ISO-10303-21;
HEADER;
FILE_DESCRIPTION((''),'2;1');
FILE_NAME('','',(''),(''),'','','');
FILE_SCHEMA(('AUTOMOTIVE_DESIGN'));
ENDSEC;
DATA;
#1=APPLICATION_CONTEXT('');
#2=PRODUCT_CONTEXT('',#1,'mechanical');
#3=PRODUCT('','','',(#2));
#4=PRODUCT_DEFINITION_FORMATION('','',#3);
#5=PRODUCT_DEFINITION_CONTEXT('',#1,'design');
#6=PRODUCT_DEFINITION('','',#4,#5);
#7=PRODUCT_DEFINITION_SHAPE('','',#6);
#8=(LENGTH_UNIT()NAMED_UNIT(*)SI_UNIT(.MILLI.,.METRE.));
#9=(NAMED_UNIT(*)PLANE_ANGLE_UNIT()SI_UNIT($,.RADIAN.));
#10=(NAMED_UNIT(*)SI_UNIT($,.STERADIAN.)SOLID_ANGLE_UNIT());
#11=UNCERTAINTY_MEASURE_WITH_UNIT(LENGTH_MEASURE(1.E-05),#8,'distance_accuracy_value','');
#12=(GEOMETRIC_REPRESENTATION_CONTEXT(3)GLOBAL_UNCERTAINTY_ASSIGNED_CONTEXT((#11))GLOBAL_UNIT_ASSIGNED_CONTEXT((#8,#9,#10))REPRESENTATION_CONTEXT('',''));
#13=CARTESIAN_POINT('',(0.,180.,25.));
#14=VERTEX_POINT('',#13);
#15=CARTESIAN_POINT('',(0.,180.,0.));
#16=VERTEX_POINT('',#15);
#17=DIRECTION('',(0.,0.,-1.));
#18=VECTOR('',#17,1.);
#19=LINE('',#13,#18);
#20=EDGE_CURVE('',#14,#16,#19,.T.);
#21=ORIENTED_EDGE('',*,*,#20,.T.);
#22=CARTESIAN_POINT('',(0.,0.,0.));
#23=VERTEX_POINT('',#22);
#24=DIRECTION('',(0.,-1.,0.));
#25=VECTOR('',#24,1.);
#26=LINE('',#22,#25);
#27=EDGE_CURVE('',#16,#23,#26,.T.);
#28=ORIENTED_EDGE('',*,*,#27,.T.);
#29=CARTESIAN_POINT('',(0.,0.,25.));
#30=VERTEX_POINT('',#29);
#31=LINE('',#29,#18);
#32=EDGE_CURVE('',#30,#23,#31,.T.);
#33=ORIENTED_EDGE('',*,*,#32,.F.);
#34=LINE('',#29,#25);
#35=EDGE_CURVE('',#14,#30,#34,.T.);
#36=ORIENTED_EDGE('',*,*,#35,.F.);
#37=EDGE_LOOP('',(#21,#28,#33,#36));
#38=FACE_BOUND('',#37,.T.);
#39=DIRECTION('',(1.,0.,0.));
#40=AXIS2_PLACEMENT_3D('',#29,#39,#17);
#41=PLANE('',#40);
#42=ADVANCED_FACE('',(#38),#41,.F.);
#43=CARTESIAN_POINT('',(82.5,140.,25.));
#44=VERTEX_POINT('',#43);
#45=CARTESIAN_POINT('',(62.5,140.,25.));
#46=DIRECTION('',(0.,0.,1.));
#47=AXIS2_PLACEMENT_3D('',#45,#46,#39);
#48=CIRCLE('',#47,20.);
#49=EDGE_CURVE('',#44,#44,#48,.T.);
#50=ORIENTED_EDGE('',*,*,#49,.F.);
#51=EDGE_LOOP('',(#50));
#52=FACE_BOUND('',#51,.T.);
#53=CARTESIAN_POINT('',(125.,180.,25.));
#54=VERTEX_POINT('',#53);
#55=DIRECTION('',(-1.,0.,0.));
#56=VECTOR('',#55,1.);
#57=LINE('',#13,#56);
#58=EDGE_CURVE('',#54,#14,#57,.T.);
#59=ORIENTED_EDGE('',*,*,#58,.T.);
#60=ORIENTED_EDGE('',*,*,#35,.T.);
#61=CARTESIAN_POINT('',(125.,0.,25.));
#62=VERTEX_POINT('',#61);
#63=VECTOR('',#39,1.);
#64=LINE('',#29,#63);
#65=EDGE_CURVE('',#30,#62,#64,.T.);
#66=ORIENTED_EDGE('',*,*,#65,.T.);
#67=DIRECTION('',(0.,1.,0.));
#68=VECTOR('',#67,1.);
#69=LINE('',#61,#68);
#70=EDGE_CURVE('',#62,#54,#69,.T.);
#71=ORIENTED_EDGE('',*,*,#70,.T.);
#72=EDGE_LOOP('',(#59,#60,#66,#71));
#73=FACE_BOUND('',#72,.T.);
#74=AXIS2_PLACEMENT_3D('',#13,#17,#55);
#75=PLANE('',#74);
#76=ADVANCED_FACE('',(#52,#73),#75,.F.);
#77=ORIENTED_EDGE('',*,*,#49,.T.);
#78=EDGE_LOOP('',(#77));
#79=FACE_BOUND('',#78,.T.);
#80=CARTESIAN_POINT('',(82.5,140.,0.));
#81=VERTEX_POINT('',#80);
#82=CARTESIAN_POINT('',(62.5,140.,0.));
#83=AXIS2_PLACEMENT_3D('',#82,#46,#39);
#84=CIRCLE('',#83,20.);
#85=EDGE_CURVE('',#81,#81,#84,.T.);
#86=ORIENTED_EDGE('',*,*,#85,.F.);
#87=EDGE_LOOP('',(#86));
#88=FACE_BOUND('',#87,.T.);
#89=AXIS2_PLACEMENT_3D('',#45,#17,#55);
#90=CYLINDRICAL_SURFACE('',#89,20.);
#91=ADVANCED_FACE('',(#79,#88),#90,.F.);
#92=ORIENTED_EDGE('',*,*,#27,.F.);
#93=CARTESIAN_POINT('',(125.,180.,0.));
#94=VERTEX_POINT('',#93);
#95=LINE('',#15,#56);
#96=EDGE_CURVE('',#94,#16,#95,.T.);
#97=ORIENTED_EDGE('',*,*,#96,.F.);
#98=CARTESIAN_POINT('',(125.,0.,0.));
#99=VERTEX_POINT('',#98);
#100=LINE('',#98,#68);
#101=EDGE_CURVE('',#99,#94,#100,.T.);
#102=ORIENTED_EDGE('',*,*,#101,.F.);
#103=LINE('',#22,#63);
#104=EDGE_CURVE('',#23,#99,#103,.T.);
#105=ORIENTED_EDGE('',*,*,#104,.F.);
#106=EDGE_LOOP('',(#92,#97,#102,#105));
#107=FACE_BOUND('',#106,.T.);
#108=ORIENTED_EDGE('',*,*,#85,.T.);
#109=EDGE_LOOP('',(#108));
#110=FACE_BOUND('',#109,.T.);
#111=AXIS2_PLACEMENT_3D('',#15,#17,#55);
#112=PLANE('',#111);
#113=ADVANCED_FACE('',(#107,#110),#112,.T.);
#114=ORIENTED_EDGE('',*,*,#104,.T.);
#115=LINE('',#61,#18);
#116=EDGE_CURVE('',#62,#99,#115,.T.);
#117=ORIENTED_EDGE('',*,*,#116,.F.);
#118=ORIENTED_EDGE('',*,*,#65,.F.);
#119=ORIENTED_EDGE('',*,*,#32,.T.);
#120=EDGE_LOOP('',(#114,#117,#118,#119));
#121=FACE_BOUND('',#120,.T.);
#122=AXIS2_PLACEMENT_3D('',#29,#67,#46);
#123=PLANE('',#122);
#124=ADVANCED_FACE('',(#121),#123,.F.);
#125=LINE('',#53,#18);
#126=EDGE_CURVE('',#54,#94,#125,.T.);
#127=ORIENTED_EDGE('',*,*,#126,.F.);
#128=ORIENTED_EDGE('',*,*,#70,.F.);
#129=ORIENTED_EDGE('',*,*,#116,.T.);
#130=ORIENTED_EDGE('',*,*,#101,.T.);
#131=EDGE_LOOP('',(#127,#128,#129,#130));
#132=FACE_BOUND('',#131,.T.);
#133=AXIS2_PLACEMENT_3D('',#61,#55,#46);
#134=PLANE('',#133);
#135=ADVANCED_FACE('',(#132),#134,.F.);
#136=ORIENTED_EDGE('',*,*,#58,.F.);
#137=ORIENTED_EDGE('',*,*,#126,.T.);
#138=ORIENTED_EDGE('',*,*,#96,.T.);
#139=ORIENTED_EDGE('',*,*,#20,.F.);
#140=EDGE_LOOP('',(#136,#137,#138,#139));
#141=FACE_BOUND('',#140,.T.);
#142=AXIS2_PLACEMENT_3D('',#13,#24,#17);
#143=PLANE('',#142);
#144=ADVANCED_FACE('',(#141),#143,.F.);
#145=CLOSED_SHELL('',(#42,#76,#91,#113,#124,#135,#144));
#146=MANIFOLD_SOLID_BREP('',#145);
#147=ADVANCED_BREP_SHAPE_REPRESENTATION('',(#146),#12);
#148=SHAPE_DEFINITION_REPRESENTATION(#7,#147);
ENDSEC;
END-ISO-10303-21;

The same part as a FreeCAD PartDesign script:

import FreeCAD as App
import Part
import Sketcher

V = App.Vector
Q = App.Units.Quantity


def add_polygon(sketch, points):
    """Adds a closed chain of lines whose ends are joined by coincident constraints."""
    first, n = sketch.GeometryCount, len(points)
    for a, b in zip(points, points[1:] + points[:1]):
        sketch.addGeometry(Part.LineSegment(App.Vector(*a, 0), App.Vector(*b, 0)), False)
    for i in range(n):
        sketch.addConstraint(Sketcher.Constraint("Coincident", first + i, 2, first + (i + 1) % n, 1))

doc = App.newDocument("Part")
params = doc.addObject("Spreadsheet::Sheet", "Params")
for row, (alias, value) in enumerate([
    ("sketch1_diameter", "40 mm"),
    ("sketch1_width", "125 mm"),
    ("sketch1_height", "180 mm"),
    ("pad1_length", "25 mm"),
], start=1):
    params.set(f"A{row}", alias)
    params.set(f"B{row}", "=" + value)
    params.setAlias(f"B{row}", alias)

body = doc.addObject("PartDesign::Body", "Body")

sketch1 = body.newObject("Sketcher::SketchObject", "Sketch")
sketch1.AttachmentSupport = (doc.getObject("XY_Plane"), [""])
sketch1.MapMode = "FlatFace"
add_polygon(sketch1, [(0, 180), (0, 0), (125, 0), (125, 180)])
sketch1.addGeometry(Part.Circle(V(62, 140, 0), V(0, 0, 1), 20), False)
sketch1.addConstraint(Sketcher.Constraint("Vertical", 0))
sketch1.addConstraint(Sketcher.Constraint("Horizontal", 1))
sketch1.addConstraint(Sketcher.Constraint("Vertical", 2))
sketch1.addConstraint(Sketcher.Constraint("Horizontal", 3))
sketch1.addConstraint(Sketcher.Constraint("Coincident", 0, 2, -1, 1))
sketch1.addConstraint(Sketcher.Constraint("Diameter", 4, Q("40 mm")))
sketch1.addConstraint(Sketcher.Constraint("DistanceX", 1, 1, 1, 2, Q("125 mm")))
sketch1.addConstraint(Sketcher.Constraint("DistanceY", 0, 2, 0, 1, Q("180 mm")))
sketch1.addConstraint(Sketcher.Constraint("DistanceY", -1, 1, 4, 3, Q("140 mm")))
sketch1.addConstraint(Sketcher.Constraint("DistanceX", -1, 1, 4, 3, Q("62.5 mm")))
sketch1.setExpression("Constraints[9]", "Params.sketch1_diameter")
sketch1.setExpression("Constraints[10]", "Params.sketch1_width")
sketch1.setExpression("Constraints[11]", "Params.sketch1_height")
pad1 = body.newObject("PartDesign::Pad", "Pad")
pad1.Profile = sketch1
pad1.setExpression("Length", "Params.pad1_length")

doc.recompute()
